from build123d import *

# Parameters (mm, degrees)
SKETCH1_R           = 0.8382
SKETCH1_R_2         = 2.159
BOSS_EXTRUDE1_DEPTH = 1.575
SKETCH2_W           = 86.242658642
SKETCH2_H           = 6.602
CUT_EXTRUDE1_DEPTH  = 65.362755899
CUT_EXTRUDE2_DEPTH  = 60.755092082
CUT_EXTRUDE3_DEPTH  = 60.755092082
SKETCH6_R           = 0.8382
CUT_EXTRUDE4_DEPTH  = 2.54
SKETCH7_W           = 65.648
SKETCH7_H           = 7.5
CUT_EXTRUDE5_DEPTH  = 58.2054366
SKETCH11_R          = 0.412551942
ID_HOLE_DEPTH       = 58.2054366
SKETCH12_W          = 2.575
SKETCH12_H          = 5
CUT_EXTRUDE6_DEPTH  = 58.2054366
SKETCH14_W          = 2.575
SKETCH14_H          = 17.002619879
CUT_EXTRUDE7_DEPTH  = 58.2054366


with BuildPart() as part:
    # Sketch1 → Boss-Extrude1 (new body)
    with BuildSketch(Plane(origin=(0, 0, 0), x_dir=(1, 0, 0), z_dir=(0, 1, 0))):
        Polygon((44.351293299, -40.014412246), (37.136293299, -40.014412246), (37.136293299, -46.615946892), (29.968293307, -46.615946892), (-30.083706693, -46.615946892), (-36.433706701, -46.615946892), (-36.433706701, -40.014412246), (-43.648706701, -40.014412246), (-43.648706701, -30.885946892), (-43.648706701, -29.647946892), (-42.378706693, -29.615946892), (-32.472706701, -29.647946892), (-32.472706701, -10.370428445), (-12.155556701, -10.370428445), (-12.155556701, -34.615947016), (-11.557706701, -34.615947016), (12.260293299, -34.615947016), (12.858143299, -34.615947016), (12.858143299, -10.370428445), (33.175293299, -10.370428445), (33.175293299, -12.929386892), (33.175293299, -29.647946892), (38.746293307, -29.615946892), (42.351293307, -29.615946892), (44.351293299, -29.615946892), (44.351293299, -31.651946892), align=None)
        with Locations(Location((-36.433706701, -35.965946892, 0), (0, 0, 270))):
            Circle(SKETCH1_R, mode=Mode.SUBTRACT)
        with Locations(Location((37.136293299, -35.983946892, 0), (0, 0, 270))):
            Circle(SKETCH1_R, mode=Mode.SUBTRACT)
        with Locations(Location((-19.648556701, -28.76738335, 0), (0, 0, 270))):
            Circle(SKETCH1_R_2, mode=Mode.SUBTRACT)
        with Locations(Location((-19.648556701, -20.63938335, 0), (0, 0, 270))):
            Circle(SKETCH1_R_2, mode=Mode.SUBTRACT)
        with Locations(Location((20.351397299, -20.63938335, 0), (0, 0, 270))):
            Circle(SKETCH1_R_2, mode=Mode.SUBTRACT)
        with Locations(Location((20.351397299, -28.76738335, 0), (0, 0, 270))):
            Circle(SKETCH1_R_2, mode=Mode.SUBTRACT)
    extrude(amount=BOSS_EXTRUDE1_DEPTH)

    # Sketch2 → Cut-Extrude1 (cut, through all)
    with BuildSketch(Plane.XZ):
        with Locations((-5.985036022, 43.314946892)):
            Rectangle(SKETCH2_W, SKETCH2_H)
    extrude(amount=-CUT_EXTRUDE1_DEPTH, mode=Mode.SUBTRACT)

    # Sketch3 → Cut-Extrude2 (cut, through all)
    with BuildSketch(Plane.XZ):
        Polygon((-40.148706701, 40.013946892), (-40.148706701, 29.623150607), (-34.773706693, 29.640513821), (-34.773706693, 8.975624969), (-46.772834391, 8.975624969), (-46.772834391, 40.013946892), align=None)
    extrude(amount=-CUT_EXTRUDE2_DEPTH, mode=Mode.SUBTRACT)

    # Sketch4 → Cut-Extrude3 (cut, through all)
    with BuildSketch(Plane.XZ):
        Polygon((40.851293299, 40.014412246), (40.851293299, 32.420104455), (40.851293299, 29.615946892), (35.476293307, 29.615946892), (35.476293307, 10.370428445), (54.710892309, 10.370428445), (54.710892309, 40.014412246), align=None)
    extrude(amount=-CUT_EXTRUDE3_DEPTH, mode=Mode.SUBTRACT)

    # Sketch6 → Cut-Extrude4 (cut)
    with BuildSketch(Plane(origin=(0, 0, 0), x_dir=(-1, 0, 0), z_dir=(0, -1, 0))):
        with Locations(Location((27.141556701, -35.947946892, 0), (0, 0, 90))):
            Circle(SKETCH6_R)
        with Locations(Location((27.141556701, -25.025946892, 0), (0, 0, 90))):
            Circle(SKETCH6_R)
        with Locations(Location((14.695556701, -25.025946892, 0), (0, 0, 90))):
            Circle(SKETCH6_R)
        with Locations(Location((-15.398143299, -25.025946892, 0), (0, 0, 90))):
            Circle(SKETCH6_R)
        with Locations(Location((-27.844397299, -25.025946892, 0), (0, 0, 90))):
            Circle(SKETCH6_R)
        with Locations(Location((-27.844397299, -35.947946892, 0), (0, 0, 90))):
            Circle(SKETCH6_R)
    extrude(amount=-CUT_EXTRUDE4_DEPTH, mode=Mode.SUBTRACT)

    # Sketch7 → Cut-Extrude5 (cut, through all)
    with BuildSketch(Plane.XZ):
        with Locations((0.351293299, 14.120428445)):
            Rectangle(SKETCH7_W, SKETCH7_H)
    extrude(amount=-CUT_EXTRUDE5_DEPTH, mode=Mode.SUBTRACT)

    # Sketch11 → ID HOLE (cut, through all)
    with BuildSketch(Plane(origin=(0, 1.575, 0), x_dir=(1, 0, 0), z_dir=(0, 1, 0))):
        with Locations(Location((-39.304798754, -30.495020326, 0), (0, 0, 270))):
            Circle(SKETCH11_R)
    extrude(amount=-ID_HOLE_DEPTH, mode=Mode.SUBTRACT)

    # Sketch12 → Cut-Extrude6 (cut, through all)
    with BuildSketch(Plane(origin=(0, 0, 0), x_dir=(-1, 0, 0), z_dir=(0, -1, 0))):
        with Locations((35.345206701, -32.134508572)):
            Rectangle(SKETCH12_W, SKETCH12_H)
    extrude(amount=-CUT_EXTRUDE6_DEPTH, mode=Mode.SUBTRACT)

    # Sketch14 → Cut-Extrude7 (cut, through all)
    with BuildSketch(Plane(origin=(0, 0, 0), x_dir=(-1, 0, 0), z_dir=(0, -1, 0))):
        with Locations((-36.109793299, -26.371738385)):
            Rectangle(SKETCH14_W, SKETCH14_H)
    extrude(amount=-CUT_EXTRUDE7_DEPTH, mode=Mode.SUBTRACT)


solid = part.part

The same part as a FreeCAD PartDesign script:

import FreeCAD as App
import Part
import Sketcher
Q = App.Units.Quantity

doc = App.newDocument("Part")
body = doc.addObject("PartDesign::Body", "Body")

# Sketch on XZ plane
sketch1 = doc.addObject("Sketcher::SketchObject", "Sketch")
body.addObject(sketch1)
sketch1.AttachmentSupport = (doc.XZ_Plane, [""])
sketch1.MapMode = "FlatFace"
sketch1.addGeometry([
    Part.LineSegment(App.Vector(37.136293, 40.014412, 0), App.Vector(44.351293, 40.014412, 0)),  # 0
    Part.LineSegment(App.Vector(44.351293, 40.014412, 0), App.Vector(44.351293, 29.615947, 0)),  # 1
    Part.LineSegment(App.Vector(44.351293, 29.615947, 0), App.Vector(38.746293, 29.615947, 0)),  # 2
    Part.LineSegment(App.Vector(38.746293, 29.615947, 0), App.Vector(33.175293, 29.647947, 0)),  # 3
    Part.LineSegment(App.Vector(33.175293, 29.647947, 0), App.Vector(33.175293, 10.370428, 0)),  # 4
    Part.LineSegment(App.Vector(33.175293, 10.370428, 0), App.Vector(12.858143, 10.370428, 0)),  # 5
    Part.LineSegment(App.Vector(12.858143, 10.370428, 0), App.Vector(12.858143, 34.615947, 0)),  # 6
    Part.LineSegment(App.Vector(12.858143, 34.615947, 0), App.Vector(-12.155557, 34.615947, 0)),  # 7
    Part.LineSegment(App.Vector(-12.155557, 34.615947, 0), App.Vector(-12.155557, 10.370428, 0)),  # 8
    Part.LineSegment(App.Vector(-12.155557, 10.370428, 0), App.Vector(-32.472707, 10.370428, 0)),  # 9
    Part.LineSegment(App.Vector(-32.472707, 10.370428, 0), App.Vector(-32.472707, 29.647947, 0)),  # 10
    Part.LineSegment(App.Vector(-32.472707, 29.647947, 0), App.Vector(-42.378707, 29.615947, 0)),  # 11
    Part.LineSegment(App.Vector(-42.378707, 29.615947, 0), App.Vector(-43.648707, 29.647947, 0)),  # 12
    Part.LineSegment(App.Vector(-43.648707, 29.647947, 0), App.Vector(-43.648707, 40.014412, 0)),  # 13
    Part.LineSegment(App.Vector(-43.648707, 40.014412, 0), App.Vector(-36.433707, 40.014412, 0)),  # 14
    Part.LineSegment(App.Vector(-36.433707, 40.014412, 0), App.Vector(-36.433707, 46.615947, 0)),  # 15
    Part.LineSegment(App.Vector(-36.433707, 46.615947, 0), App.Vector(37.136293, 46.615947, 0)),  # 16
    Part.LineSegment(App.Vector(37.136293, 46.615947, 0), App.Vector(37.136293, 40.014412, 0)),  # 17
    Part.Circle(App.Vector(37.136293, 35.983947, 0), App.Vector(0, 0, 1), 0.8382),  # 18
    Part.Circle(App.Vector(20.351397, 28.767383, 0), App.Vector(0, 0, 1), 2.159),  # 19
    Part.Circle(App.Vector(-36.433707, 35.965947, 0), App.Vector(0, 0, 1), 0.8382),  # 20
    Part.Circle(App.Vector(-19.648557, 28.767383, 0), App.Vector(0, 0, 1), 2.159),  # 21
    Part.Circle(App.Vector(20.351397, 20.639383, 0), App.Vector(0, 0, 1), 2.159),  # 22
    Part.Circle(App.Vector(-19.648557, 20.639383, 0), App.Vector(0, 0, 1), 2.159),  # 23
], False)
sketch1.addConstraint([
    Sketcher.Constraint("Coincident", 0, 2, 1, 1),
    Sketcher.Constraint("Coincident", 1, 2, 2, 1),
    Sketcher.Constraint("Coincident", 2, 2, 3, 1),
    Sketcher.Constraint("Coincident", 3, 2, 4, 1),
    Sketcher.Constraint("Coincident", 4, 2, 5, 1),
    Sketcher.Constraint("Coincident", 5, 2, 6, 1),
    Sketcher.Constraint("Coincident", 6, 2, 7, 1),
    Sketcher.Constraint("Coincident", 7, 2, 8, 1),
    Sketcher.Constraint("Coincident", 8, 2, 9, 1),
    Sketcher.Constraint("Coincident", 9, 2, 10, 1),
    Sketcher.Constraint("Coincident", 10, 2, 11, 1),
    Sketcher.Constraint("Coincident", 11, 2, 12, 1),
    Sketcher.Constraint("Coincident", 12, 2, 13, 1),
    Sketcher.Constraint("Coincident", 13, 2, 14, 1),
    Sketcher.Constraint("Coincident", 14, 2, 15, 1),
    Sketcher.Constraint("Coincident", 15, 2, 16, 1),
    Sketcher.Constraint("Coincident", 16, 2, 17, 1),
    Sketcher.Constraint("Coincident", 17, 2, 0, 1),
    Sketcher.Constraint("Horizontal", 0),
    Sketcher.Constraint("Vertical", 1),
    Sketcher.Constraint("Horizontal", 2),
    Sketcher.Constraint("Vertical", 4),
    Sketcher.Constraint("Horizontal", 5),
    Sketcher.Constraint("Vertical", 6),
    Sketcher.Constraint("Horizontal", 7),
    Sketcher.Constraint("Vertical", 8),
    Sketcher.Constraint("Horizontal", 9),
    Sketcher.Constraint("Vertical", 10),
    Sketcher.Constraint("Vertical", 13),
    Sketcher.Constraint("Horizontal", 14),
    Sketcher.Constraint("Vertical", 15),
    Sketcher.Constraint("Horizontal", 16),
    Sketcher.Constraint("Vertical", 17),
    Sketcher.Constraint("Equal", 18, 20),
    Sketcher.Constraint("Equal", 19, 21),
    Sketcher.Constraint("Equal", 21, 22),
    Sketcher.Constraint("Equal", 22, 23),
    Sketcher.Constraint("Horizontal", 19, 3, 21, 3),
    Sketcher.Constraint("Horizontal", 22, 3, 23, 3),
    Sketcher.Constraint("Horizontal", 5, 2, 8, 2),
    Sketcher.Constraint("Horizontal", 3, 2, 10, 2),
    Sketcher.Constraint("Horizontal", 2, 2, 11, 2),
    Sketcher.Constraint("Horizontal", 10, 2, 12, 2),
    Sketcher.Constraint("Horizontal", 0, 2, 13, 2),
    Sketcher.Constraint("Vertical", 19, 3, 22, 3),
    Sketcher.Constraint("Vertical", 21, 3, 23, 3),
    Sketcher.Constraint("Vertical", 20, 3, 14, 2),
    Sketcher.Constraint("Vertical", 18, 3, 16, 2),
    Sketcher.Constraint("Equal", 5, 9),
    Sketcher.Constraint("Equal", 0, 14),
    Sketcher.Constraint("Diameter", 19, Q("0.17 in")),
    Sketcher.Constraint("Diameter", 18, Q("0.066 in")),
    Sketcher.Constraint("DistanceY", 22, 3, 19, 3, Q("0.32 in")),
    Sketcher.Constraint("DistanceX", 3, 2, 1, 2, Q("0.44 in")),
    Sketcher.Constraint("DistanceY", 11, 2, 20, 3, Q("0.25 in")),
    Sketcher.Constraint("DistanceX", 11, 2, 10, 2, Q("0.39 in")),
    Sketcher.Constraint("DistanceX", 12, 2, 11, 2, Q("0.05 in")),
    Sketcher.Constraint("DistanceX", 21, 3, 7, 2, Q("0.295 in")),
    Sketcher.Constraint("DistanceX", 0, 1, 0, 2, Q("7.215 mm")),
    Sketcher.Constraint("DistanceX", 2, 2, 2, 1, Q("5.605 mm")),
    Sketcher.Constraint("DistanceX", 7, 2, 7, 1, Q("25.0137 mm")),
    Sketcher.Constraint("DistanceX", 16, 1, 16, 2, Q("73.57 mm")),
    Sketcher.Constraint("DistanceY", 4, 2, 4, 1, Q("19.277518 mm")),
    Sketcher.Constraint("DistanceY", 6, 1, 6, 2, Q("24.245519 mm")),
    Sketcher.Constraint("DistanceY", 20, 3, 18, 3, Q("0.018 mm")),
    Sketcher.Constraint("DistanceY", 2, 2, 3, 2, Q("0.032 mm")),
    Sketcher.Constraint("DistanceY", 20, 3, 15, 2, Q("10.65 mm")),
    Sketcher.Constraint("DistanceY", 1, 2, 1, 1, Q("10.398465 mm")),
    Sketcher.Constraint("DistanceY", -1, 1, 4, 2, Q("10.370428 mm")),
    Sketcher.Constraint("DistanceY", 19, 3, 0, 2, Q("11.247029 mm")),
    Sketcher.Constraint("DistanceX", -1, 1, 18, 3, Q("37.136293 mm")),
    Sketcher.Constraint("DistanceX", -1, 1, 19, 3, Q("20.351397 mm")),
])
pad1 = doc.addObject("PartDesign::Pad", "Pad")
body.addObject(pad1)
pad1.Profile = sketch1
pad1.Length = 1.575
pad1.Reversed = True

# Sketch on XZ plane
sketch2 = doc.addObject("Sketcher::SketchObject", "Sketch001")
body.addObject(sketch2)
sketch2.AttachmentSupport = (doc.XZ_Plane, [""])
sketch2.MapMode = "FlatFace"
sketch2.addGeometry([
    Part.LineSegment(App.Vector(-49.106365, 46.615947, 0), App.Vector(-49.106365, 40.013947, 0)),
    Part.LineSegment(App.Vector(-49.106365, 40.013947, 0), App.Vector(37.136293, 40.013947, 0)),
    Part.LineSegment(App.Vector(37.136293, 40.013947, 0), App.Vector(37.136293, 46.615947, 0)),
    Part.LineSegment(App.Vector(37.136293, 46.615947, 0), App.Vector(-49.106365, 46.615947, 0)),
], False)
sketch2.addConstraint([
    Sketcher.Constraint("Coincident", 0, 2, 1, 1),
    Sketcher.Constraint("Coincident", 1, 2, 2, 1),
    Sketcher.Constraint("Coincident", 2, 2, 3, 1),
    Sketcher.Constraint("Coincident", 3, 2, 0, 1),
    Sketcher.Constraint("Vertical", 0),
    Sketcher.Constraint("Horizontal", 1),
    Sketcher.Constraint("Vertical", 2),
    Sketcher.Constraint("Horizontal", 3),
    Sketcher.Constraint("DistanceY", 0, 2, 0, 1, Q("6.602 mm")),
    Sketcher.Constraint("DistanceX", 1, 1, 1, 2, Q("86.242659 mm")),
    Sketcher.Constraint("DistanceX", 0, 2, -1, 1, Q("49.106365 mm")),
    Sketcher.Constraint("DistanceY", -1, 1, 0, 2, Q("40.013947 mm")),
])
pocket1 = doc.addObject("PartDesign::Pocket", "Pocket")
body.addObject(pocket1)
pocket1.Profile = sketch2
pocket1.Type = "ThroughAll"

# Sketch on XZ plane
sketch3 = doc.addObject("Sketcher::SketchObject", "Sketch002")
body.addObject(sketch3)
sketch3.AttachmentSupport = (doc.XZ_Plane, [""])
sketch3.MapMode = "FlatFace"
sketch3.addGeometry([
    Part.LineSegment(App.Vector(-40.148707, 29.623151, 0), App.Vector(-40.148707, 40.013947, 0)),  # 0
    Part.LineSegment(App.Vector(-40.148707, 40.013947, 0), App.Vector(-46.772834, 40.013947, 0)),  # 1
    Part.LineSegment(App.Vector(-46.772834, 40.013947, 0), App.Vector(-46.772834, 8.975625, 0)),  # 2
    Part.LineSegment(App.Vector(-46.772834, 8.975625, 0), App.Vector(-34.773707, 8.975625, 0)),  # 3
    Part.LineSegment(App.Vector(-34.773707, 8.975625, 0), App.Vector(-34.773707, 29.640514, 0)),  # 4
    Part.LineSegment(App.Vector(-34.773707, 29.640514, 0), App.Vector(-40.148707, 29.623151, 0)),  # 5
], False)
sketch3.addConstraint([
    Sketcher.Constraint("Coincident", 0, 2, 1, 1),
    Sketcher.Constraint("Coincident", 1, 2, 2, 1),
    Sketcher.Constraint("Coincident", 2, 2, 3, 1),
    Sketcher.Constraint("Coincident", 3, 2, 4, 1),
    Sketcher.Constraint("Coincident", 4, 2, 5, 1),
    Sketcher.Constraint("Coincident", 5, 2, 0, 1),
    Sketcher.Constraint("Vertical", 0),
    Sketcher.Constraint("Horizontal", 1),
    Sketcher.Constraint("Vertical", 2),
    Sketcher.Constraint("Horizontal", 3),
    Sketcher.Constraint("Vertical", 4),
    Sketcher.Constraint("DistanceY", 2, 2, 2, 1, Q("31.038322 mm")),
    Sketcher.Constraint("DistanceY", 4, 1, 4, 2, Q("20.664889 mm")),
    Sketcher.Constraint("DistanceX", 0, 2, 3, 2, Q("5.375 mm")),
    Sketcher.Constraint("DistanceX", 1, 2, 1, 1, Q("6.624128 mm")),
    Sketcher.Constraint("DistanceY", 0, 1, 0, 2, Q("10.390796 mm")),
    Sketcher.Constraint("DistanceY", -1, 1, 5, 2, Q("29.623151 mm")),
    Sketcher.Constraint("DistanceX", 0, 2, -1, 1, Q("40.148707 mm")),
])
pocket2 = doc.addObject("PartDesign::Pocket", "Pocket001")
body.addObject(pocket2)
pocket2.Profile = sketch3
pocket2.Type = "ThroughAll"

# Sketch on XZ plane
sketch4 = doc.addObject("Sketcher::SketchObject", "Sketch003")
body.addObject(sketch4)
sketch4.AttachmentSupport = (doc.XZ_Plane, [""])
sketch4.MapMode = "FlatFace"
sketch4.addGeometry([
    Part.LineSegment(App.Vector(40.851293, 40.014412, 0), App.Vector(40.851293, 29.615947, 0)),  # 0
    Part.LineSegment(App.Vector(40.851293, 29.615947, 0), App.Vector(35.476293, 29.615947, 0)),  # 1
    Part.LineSegment(App.Vector(35.476293, 29.615947, 0), App.Vector(35.476293, 10.370428, 0)),  # 2
    Part.LineSegment(App.Vector(35.476293, 10.370428, 0), App.Vector(54.710892, 10.370428, 0)),  # 3
    Part.LineSegment(App.Vector(54.710892, 10.370428, 0), App.Vector(54.710892, 40.014412, 0)),  # 4
    Part.LineSegment(App.Vector(54.710892, 40.014412, 0), App.Vector(40.851293, 40.014412, 0)),  # 5
], False)
sketch4.addConstraint([
    Sketcher.Constraint("Coincident", 0, 2, 1, 1),
    Sketcher.Constraint("Coincident", 1, 2, 2, 1),
    Sketcher.Constraint("Coincident", 2, 2, 3, 1),
    Sketcher.Constraint("Coincident", 3, 2, 4, 1),
    Sketcher.Constraint("Coincident", 4, 2, 5, 1),
    Sketcher.Constraint("Coincident", 5, 2, 0, 1),
    Sketcher.Constraint("Vertical", 0),
    Sketcher.Constraint("Horizontal", 1),
    Sketcher.Constraint("Vertical", 2),
    Sketcher.Constraint("Horizontal", 3),
    Sketcher.Constraint("Vertical", 4),
    Sketcher.Constraint("Horizontal", 5),
    Sketcher.Constraint("DistanceX", 1, 2, 1, 1, Q("5.375 mm")),
    Sketcher.Constraint("DistanceX", 3, 1, 3, 2, Q("19.234599 mm")),
    Sketcher.Constraint("DistanceY", 2, 2, 2, 1, Q("19.245518 mm")),
    Sketcher.Constraint("DistanceY", 0, 2, 0, 1, Q("10.398465 mm")),
    Sketcher.Constraint("DistanceY", -1, 1, 2, 2, Q("10.370428 mm")),
    Sketcher.Constraint("DistanceX", -1, 1, 0, 2, Q("40.851293 mm")),
])
pocket3 = doc.addObject("PartDesign::Pocket", "Pocket002")
body.addObject(pocket3)
pocket3.Profile = sketch4
pocket3.Type = "ThroughAll"

# Sketch on XZ plane
sketch5 = doc.addObject("Sketcher::SketchObject", "Sketch004")
body.addObject(sketch5)
sketch5.AttachmentSupport = (doc.XZ_Plane, [""])
sketch5.MapMode = "FlatFace"
sketch5.addGeometry([
    Part.Circle(App.Vector(-27.141557, 35.947947, 0), App.Vector(0, 0, 1), 0.8382),  # 0
    Part.Circle(App.Vector(-27.141557, 25.025947, 0), App.Vector(0, 0, 1), 0.8382),  # 1
    Part.Circle(App.Vector(-14.695557, 25.025947, 0), App.Vector(0, 0, 1), 0.8382),  # 2
    Part.Circle(App.Vector(15.398143, 25.025947, 0), App.Vector(0, 0, 1), 0.8382),  # 3
    Part.Circle(App.Vector(27.844397, 25.025947, 0), App.Vector(0, 0, 1), 0.8382),  # 4
    Part.Circle(App.Vector(27.844397, 35.947947, 0), App.Vector(0, 0, 1), 0.8382),  # 5
], False)
sketch5.addConstraint([
    Sketcher.Constraint("Equal", 0, 1),
    Sketcher.Constraint("Equal", 1, 2),
    Sketcher.Constraint("Equal", 2, 3),
    Sketcher.Constraint("Equal", 3, 4),
    Sketcher.Constraint("Equal", 4, 5),
    Sketcher.Constraint("Horizontal", 1, 3, 2, 3),
    Sketcher.Constraint("Horizontal", 2, 3, 3, 3),
    Sketcher.Constraint("Horizontal", 3, 3, 4, 3),
    Sketcher.Constraint("Horizontal", 0, 3, 5, 3),
    Sketcher.Constraint("Vertical", 0, 3, 1, 3),
    Sketcher.Constraint("Vertical", 4, 3, 5, 3),
    Sketcher.Constraint("Diameter", 0, Q("0.066 in")),
    Sketcher.Constraint("DistanceY", 1, 3, 0, 3, Q("0.43 in")),
    Sketcher.Constraint("DistanceX", 1, 3, 2, 3, Q("0.49 in")),
    Sketcher.Constraint("DistanceX", 2, 3, 3, 3, Q("30.0937 mm")),
    Sketcher.Constraint("DistanceX", 0, 3, -1, 1, Q("27.141557 mm")),
    Sketcher.Constraint("DistanceY", -1, 1, 0, 3, Q("35.947947 mm")),
    Sketcher.Constraint("DistanceX", -1, 1, 4, 3, Q("27.844397 mm")),
])
pocket4 = doc.addObject("PartDesign::Pocket", "Pocket003")
body.addObject(pocket4)
pocket4.Profile = sketch5
pocket4.Length = Q("0.1 in")

# Sketch on XZ plane
sketch6 = doc.addObject("Sketcher::SketchObject", "Sketch005")
body.addObject(sketch6)
sketch6.AttachmentSupport = (doc.XZ_Plane, [""])
sketch6.MapMode = "FlatFace"
sketch6.addGeometry([
    Part.LineSegment(App.Vector(-32.472707, 17.870428, 0), App.Vector(-32.472707, 10.370428, 0)),
    Part.LineSegment(App.Vector(-32.472707, 10.370428, 0), App.Vector(33.175293, 10.370428, 0)),
    Part.LineSegment(App.Vector(33.175293, 10.370428, 0), App.Vector(33.175293, 17.870428, 0)),
    Part.LineSegment(App.Vector(33.175293, 17.870428, 0), App.Vector(-32.472707, 17.870428, 0)),
], False)
sketch6.addConstraint([
    Sketcher.Constraint("Coincident", 0, 2, 1, 1),
    Sketcher.Constraint("Coincident", 1, 2, 2, 1),
    Sketcher.Constraint("Coincident", 2, 2, 3, 1),
    Sketcher.Constraint("Coincident", 3, 2, 0, 1),
    Sketcher.Constraint("Vertical", 0),
    Sketcher.Constraint("Horizontal", 1),
    Sketcher.Constraint("Vertical", 2),
    Sketcher.Constraint("Horizontal", 3),
    Sketcher.Constraint("DistanceX", 1, 1, 1, 2, Q("65.648 mm")),
    Sketcher.Constraint("DistanceY", 0, 2, 0, 1, Q("7.5 mm")),
    Sketcher.Constraint("DistanceY", -1, 1, 0, 2, Q("10.370428 mm")),
    Sketcher.Constraint("DistanceX", 0, 2, -1, 1, Q("32.472707 mm")),
])
pocket5 = doc.addObject("PartDesign::Pocket", "Pocket004")
body.addObject(pocket5)
pocket5.Profile = sketch6
pocket5.Type = "ThroughAll"

# Sketch on XZ plane
sketch7 = doc.addObject("Sketcher::SketchObject", "Sketch006")
body.addObject(sketch7)
sketch7.AttachmentSupport = (doc.XZ_Plane, [""])
sketch7.MapMode = "FlatFace"
sketch7.AttachmentOffset = App.Placement(App.Vector(0, 0, -1.575), App.Rotation())
sketch7.addGeometry(Part.Circle(App.Vector(-39.304799, 30.49502, 0), App.Vector(0, 0, 1), 0.412552), False)
sketch7.addConstraint([
    Sketcher.Constraint("Diameter", 0, Q("0.825104 mm")),
    Sketcher.Constraint("DistanceX", 0, 3, -1, 1, Q("39.304799 mm")),
    Sketcher.Constraint("DistanceY", -1, 1, 0, 3, Q("30.49502 mm")),
])
pocket6 = doc.addObject("PartDesign::Pocket", "Pocket005")
body.addObject(pocket6)
pocket6.Profile = sketch7
pocket6.Type = "ThroughAll"
pocket6.Reversed = True

# Sketch on XZ plane
sketch8 = doc.addObject("Sketcher::SketchObject", "Sketch007")
body.addObject(sketch8)
sketch8.AttachmentSupport = (doc.XZ_Plane, [""])
sketch8.MapMode = "FlatFace"
sketch8.addGeometry([
    Part.LineSegment(App.Vector(-34.057707, 29.634509, 0), App.Vector(-34.057707, 34.634509, 0)),
    Part.LineSegment(App.Vector(-34.057707, 34.634509, 0), App.Vector(-36.632707, 34.634509, 0)),
    Part.LineSegment(App.Vector(-36.632707, 34.634509, 0), App.Vector(-36.632707, 29.634509, 0)),
    Part.LineSegment(App.Vector(-36.632707, 29.634509, 0), App.Vector(-34.057707, 29.634509, 0)),
], False)
sketch8.addConstraint([
    Sketcher.Constraint("Coincident", 0, 2, 1, 1),
    Sketcher.Constraint("Coincident", 1, 2, 2, 1),
    Sketcher.Constraint("Coincident", 2, 2, 3, 1),
    Sketcher.Constraint("Coincident", 3, 2, 0, 1),
    Sketcher.Constraint("Vertical", 0),
    Sketcher.Constraint("Horizontal", 1),
    Sketcher.Constraint("Vertical", 2),
    Sketcher.Constraint("Horizontal", 3),
    Sketcher.Constraint("DistanceX", 1, 2, 1, 1, Q("2.575 mm")),
    Sketcher.Constraint("DistanceY", 0, 1, 0, 2, Q("5 mm")),
    Sketcher.Constraint("DistanceY", -1, 1, 0, 2, Q("34.634509 mm")),
    Sketcher.Constraint("DistanceX", 0, 2, -1, 1, Q("34.057707 mm")),
])
pocket7 = doc.addObject("PartDesign::Pocket", "Pocket006")
body.addObject(pocket7)
pocket7.Profile = sketch8
pocket7.Type = "ThroughAll"

# Sketch on XZ plane
sketch9 = doc.addObject("Sketcher::SketchObject", "Sketch008")
body.addObject(sketch9)
sketch9.AttachmentSupport = (doc.XZ_Plane, [""])
sketch9.MapMode = "FlatFace"
sketch9.addGeometry([
    Part.LineSegment(App.Vector(37.397293, 17.870428, 0), App.Vector(37.397293, 34.873048, 0)),
    Part.LineSegment(App.Vector(37.397293, 34.873048, 0), App.Vector(34.822293, 34.873048, 0)),
    Part.LineSegment(App.Vector(34.822293, 34.873048, 0), App.Vector(34.822293, 17.870428, 0)),
    Part.LineSegment(App.Vector(34.822293, 17.870428, 0), App.Vector(37.397293, 17.870428, 0)),
], False)
sketch9.addConstraint([
    Sketcher.Constraint("Coincident", 0, 2, 1, 1),
    Sketcher.Constraint("Coincident", 1, 2, 2, 1),
    Sketcher.Constraint("Coincident", 2, 2, 3, 1),
    Sketcher.Constraint("Coincident", 3, 2, 0, 1),
    Sketcher.Constraint("Vertical", 0),
    Sketcher.Constraint("Horizontal", 1),
    Sketcher.Constraint("Vertical", 2),
    Sketcher.Constraint("Horizontal", 3),
    Sketcher.Constraint("DistanceX", 1, 2, 1, 1, Q("2.575 mm")),
    Sketcher.Constraint("DistanceY", 0, 1, 0, 2, Q("17.00262 mm")),
    Sketcher.Constraint("DistanceY", -1, 1, 0, 2, Q("34.873048 mm")),
    Sketcher.Constraint("DistanceX", -1, 1, 0, 2, Q("37.397293 mm")),
])
pocket8 = doc.addObject("PartDesign::Pocket", "Pocket007")
body.addObject(pocket8)
pocket8.Profile = sketch9
pocket8.Type = "ThroughAll"

doc.recompute()
